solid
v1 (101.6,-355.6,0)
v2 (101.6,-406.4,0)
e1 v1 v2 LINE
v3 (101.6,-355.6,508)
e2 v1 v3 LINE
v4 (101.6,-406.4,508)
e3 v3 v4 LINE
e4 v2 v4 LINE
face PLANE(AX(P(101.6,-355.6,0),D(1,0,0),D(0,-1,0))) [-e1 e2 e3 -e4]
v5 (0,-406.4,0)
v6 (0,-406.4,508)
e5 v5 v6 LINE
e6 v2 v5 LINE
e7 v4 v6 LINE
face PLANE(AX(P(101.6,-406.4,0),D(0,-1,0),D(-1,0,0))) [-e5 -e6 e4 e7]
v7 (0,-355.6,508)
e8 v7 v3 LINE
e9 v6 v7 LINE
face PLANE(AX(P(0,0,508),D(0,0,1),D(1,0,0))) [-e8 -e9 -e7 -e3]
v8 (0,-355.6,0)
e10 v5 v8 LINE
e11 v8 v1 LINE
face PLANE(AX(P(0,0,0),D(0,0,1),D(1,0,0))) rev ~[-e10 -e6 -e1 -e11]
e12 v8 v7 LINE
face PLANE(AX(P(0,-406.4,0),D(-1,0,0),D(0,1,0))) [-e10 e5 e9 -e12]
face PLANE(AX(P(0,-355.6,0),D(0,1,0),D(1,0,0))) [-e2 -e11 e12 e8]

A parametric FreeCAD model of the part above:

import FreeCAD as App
import Part
import Sketcher

V = App.Vector
Q = App.Units.Quantity

doc = App.newDocument("Part")
body = doc.addObject("PartDesign::Body", "Body")

sketch1 = body.newObject("Sketcher::SketchObject", "Sketch")
sketch1.AttachmentSupport = (doc.getObject("XY_Plane"), [""])
sketch1.MapMode = "FlatFace"
sketch1.addGeometry([
    Part.LineSegment(V(0, -406, 0), V(102, -406, 0)),
    Part.LineSegment(V(102, -406, 0), V(102, -356, 0)),
    Part.LineSegment(V(102, -356, 0), V(0, -356, 0)),
    Part.LineSegment(V(0, -356, 0), V(0, -406, 0)),
], False)
sketch1.addConstraint([
    Sketcher.Constraint("Coincident", 0, 2, 1, 1),
    Sketcher.Constraint("Coincident", 1, 2, 2, 1),
    Sketcher.Constraint("Coincident", 2, 2, 3, 1),
    Sketcher.Constraint("Coincident", 3, 2, 0, 1),
    Sketcher.Constraint("Horizontal", 0),
    Sketcher.Constraint("Vertical", 1),
    Sketcher.Constraint("Horizontal", 2),
    Sketcher.Constraint("Vertical", 3),
    Sketcher.Constraint("PointOnObject", 2, 2, -2),
    Sketcher.Constraint("DistanceY", 1, 1, 1, 2, Q("2 in")),
    Sketcher.Constraint("DistanceX", 0, 1, 0, 2, Q("4 in")),
    Sketcher.Constraint("DistanceY", 0, 2, -1, 1, Q("16 in")),
])
pad1 = body.newObject("PartDesign::Pad", "Pad")
pad1.Profile = sketch1
pad1.Length = Q("20 in")

doc.recompute()
